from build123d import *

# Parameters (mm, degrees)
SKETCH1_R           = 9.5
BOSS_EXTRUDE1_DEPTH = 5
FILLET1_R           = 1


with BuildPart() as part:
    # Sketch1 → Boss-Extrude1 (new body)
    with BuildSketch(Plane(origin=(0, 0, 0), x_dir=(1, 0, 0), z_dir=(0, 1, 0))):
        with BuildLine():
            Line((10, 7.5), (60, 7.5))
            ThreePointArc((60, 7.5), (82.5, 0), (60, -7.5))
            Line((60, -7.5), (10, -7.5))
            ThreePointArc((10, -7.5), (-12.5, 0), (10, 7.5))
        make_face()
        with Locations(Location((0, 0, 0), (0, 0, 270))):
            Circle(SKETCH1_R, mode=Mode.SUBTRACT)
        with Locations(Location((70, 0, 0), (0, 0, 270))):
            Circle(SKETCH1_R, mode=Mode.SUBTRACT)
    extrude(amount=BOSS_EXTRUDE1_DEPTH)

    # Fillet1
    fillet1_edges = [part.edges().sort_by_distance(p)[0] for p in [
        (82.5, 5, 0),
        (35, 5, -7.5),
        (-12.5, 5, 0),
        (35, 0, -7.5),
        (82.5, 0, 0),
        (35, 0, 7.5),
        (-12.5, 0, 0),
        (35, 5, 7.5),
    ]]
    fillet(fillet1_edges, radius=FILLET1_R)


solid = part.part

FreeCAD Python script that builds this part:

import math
import FreeCAD as App
import Part
import Sketcher
from FreeCAD import Vector


def edges_at(feature, points):
    """Names of the edges that pass closest to the given points."""
    edges = feature.Shape.Edges
    near = lambda p: min(range(len(edges)), key=lambda i: edges[i].distToShape(Part.Vertex(*p))[0])
    return sorted({f"Edge{near(p) + 1}" for p in points})

doc = App.newDocument("Part")
body = doc.addObject("PartDesign::Body", "Body")

# Sketch on XZ plane
sketch1 = body.newObject("Sketcher::SketchObject", "Sketch")
sketch1.AttachmentSupport = (doc.getObject("XZ_Plane"), [""])
sketch1.MapMode = "FlatFace"
sketch1.addGeometry(Part.LineSegment(Vector(60, -8, 0), Vector(10, -8, 0)), False)
sketch1.addGeometry(Part.ArcOfCircle(Part.Circle(Vector(0, 0, 0), Vector(0, 0, 1), 12), math.radians(37), math.radians(323)), False)
sketch1.addGeometry(Part.LineSegment(Vector(10, 8, 0), Vector(60, 8, 0)), False)
sketch1.addGeometry(Part.ArcOfCircle(Part.Circle(Vector(70, 0, 0), Vector(0, 0, 1), 12), math.radians(-143), math.radians(143)), False)
sketch1.addGeometry(Part.Circle(Vector(70, 0, 0), Vector(0, 0, 1), 10), False)
sketch1.addGeometry(Part.Circle(Vector(0, 0, 0), Vector(0, 0, 1), 10), False)
sketch1.addConstraint(Sketcher.Constraint("Coincident", 0, 2, 1, 2))
sketch1.addConstraint(Sketcher.Constraint("Coincident", 1, 1, 2, 1))
sketch1.addConstraint(Sketcher.Constraint("Coincident", 2, 2, 3, 2))
sketch1.addConstraint(Sketcher.Constraint("Coincident", 3, 1, 0, 1))
sketch1.addConstraint(Sketcher.Constraint("Horizontal", 0))
sketch1.addConstraint(Sketcher.Constraint("Horizontal", 2))
sketch1.addConstraint(Sketcher.Constraint("Coincident", 1, 3, -1, 1))
sketch1.addConstraint(Sketcher.Constraint("Coincident", 5, 3, -1, 1))
sketch1.addConstraint(Sketcher.Constraint("Coincident", 4, 3, 3, 3))
sketch1.addConstraint(Sketcher.Constraint("Equal", 1, 3))
sketch1.addConstraint(Sketcher.Constraint("Equal", 4, 5))
sketch1.addConstraint(Sketcher.Constraint("Symmetric", 2, 2, 3, 1, -1))
sketch1.addConstraint(Sketcher.Constraint("Diameter", 4, 19.0))
sketch1.addConstraint(Sketcher.Constraint("Radius", 1, 12.5))
sketch1.addConstraint(Sketcher.Constraint("DistanceX", 0, 2, 0, 1, 50.0))
sketch1.addConstraint(Sketcher.Constraint("DistanceX", -1, 1, 3, 3, 70.0))
pad1 = body.newObject("PartDesign::Pad", "Pad")
pad1.Profile = sketch1
pad1.Length = 5
pad1.Reversed = True
doc.recompute()

fillet = body.newObject("PartDesign::Fillet", "Fillet")
fillet.Base = (pad1, edges_at(pad1, [
    (82.5, 5, 0),
    (35, 5, -7.5),
    (-12.5, 5, 0),
    (35, 0, -7.5),
    (82.5, 0, 0),
    (35, 0, 7.5),
    (-12.5, 0, 0),
    (35, 5, 7.5),
]))
fillet.Radius = 1

doc.recompute()
